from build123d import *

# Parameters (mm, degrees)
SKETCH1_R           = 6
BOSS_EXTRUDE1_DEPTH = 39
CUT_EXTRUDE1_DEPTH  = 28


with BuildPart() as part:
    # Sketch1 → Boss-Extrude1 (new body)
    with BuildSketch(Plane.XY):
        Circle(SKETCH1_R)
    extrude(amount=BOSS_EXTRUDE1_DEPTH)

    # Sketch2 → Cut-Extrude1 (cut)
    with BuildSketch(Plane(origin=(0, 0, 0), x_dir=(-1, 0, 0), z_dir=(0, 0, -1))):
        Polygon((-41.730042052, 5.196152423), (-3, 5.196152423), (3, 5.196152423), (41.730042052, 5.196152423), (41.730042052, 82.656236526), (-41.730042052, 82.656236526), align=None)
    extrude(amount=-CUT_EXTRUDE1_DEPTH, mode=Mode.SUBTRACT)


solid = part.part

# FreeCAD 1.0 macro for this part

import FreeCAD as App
import Part
import Sketcher
from FreeCAD import Vector
Q = App.Units.Quantity

doc = App.newDocument("Part")
body = doc.addObject("PartDesign::Body", "Body")

# Sketch on XY plane
sketch1 = doc.addObject("Sketcher::SketchObject", "Sketch")
body.addObject(sketch1)
sketch1.AttachmentSupport = (doc.XY_Plane, [""])
sketch1.MapMode = "FlatFace"
sketch1.addGeometry(Part.Circle(Vector(0, 0, 0), Vector(0, 0, 1), 6), False)
sketch1.addConstraint(Sketcher.Constraint("Coincident", 0, 3, -1, 1))
sketch1.addConstraint(Sketcher.Constraint("Diameter", 0, Q("12 mm")))
pad1 = doc.addObject("PartDesign::Pad", "Pad")
body.addObject(pad1)
pad1.Profile = sketch1
pad1.Length = 39

# Sketch on XY plane
sketch2 = doc.addObject("Sketcher::SketchObject", "Sketch001")
body.addObject(sketch2)
sketch2.AttachmentSupport = (doc.XY_Plane, [""])
sketch2.MapMode = "FlatFace"
sketch2.addGeometry(Part.LineSegment(Vector(42, 5, 0), Vector(-42, 5, 0)), False)
sketch2.addGeometry(Part.LineSegment(Vector(-42, 5, 0), Vector(-42, 83, 0)), False)
sketch2.addGeometry(Part.LineSegment(Vector(-42, 83, 0), Vector(42, 83, 0)), False)
sketch2.addGeometry(Part.LineSegment(Vector(42, 83, 0), Vector(42, 5, 0)), False)
sketch2.addConstraint(Sketcher.Constraint("Coincident", 0, 2, 1, 1))
sketch2.addConstraint(Sketcher.Constraint("Coincident", 1, 2, 2, 1))
sketch2.addConstraint(Sketcher.Constraint("Coincident", 2, 2, 3, 1))
sketch2.addConstraint(Sketcher.Constraint("Coincident", 3, 2, 0, 1))
sketch2.addConstraint(Sketcher.Constraint("Horizontal", 0))
sketch2.addConstraint(Sketcher.Constraint("Vertical", 1))
sketch2.addConstraint(Sketcher.Constraint("Horizontal", 2))
sketch2.addConstraint(Sketcher.Constraint("Vertical", 3))
sketch2.addConstraint(Sketcher.Constraint("DistanceX", 0, 2, 0, 1, Q("83.460084 mm")))
sketch2.addConstraint(Sketcher.Constraint("DistanceY", 1, 1, 1, 2, Q("77.460084 mm")))
sketch2.addConstraint(Sketcher.Constraint("DistanceX", 0, 2, -1, 1, Q("41.730042 mm")))
sketch2.addConstraint(Sketcher.Constraint("DistanceY", -1, 1, 0, 2, Q("5.196152 mm")))
pocket1 = doc.addObject("PartDesign::Pocket", "Pocket")
body.addObject(pocket1)
pocket1.Profile = sketch2
pocket1.Length = 28
pocket1.Reversed = True

doc.recompute()
